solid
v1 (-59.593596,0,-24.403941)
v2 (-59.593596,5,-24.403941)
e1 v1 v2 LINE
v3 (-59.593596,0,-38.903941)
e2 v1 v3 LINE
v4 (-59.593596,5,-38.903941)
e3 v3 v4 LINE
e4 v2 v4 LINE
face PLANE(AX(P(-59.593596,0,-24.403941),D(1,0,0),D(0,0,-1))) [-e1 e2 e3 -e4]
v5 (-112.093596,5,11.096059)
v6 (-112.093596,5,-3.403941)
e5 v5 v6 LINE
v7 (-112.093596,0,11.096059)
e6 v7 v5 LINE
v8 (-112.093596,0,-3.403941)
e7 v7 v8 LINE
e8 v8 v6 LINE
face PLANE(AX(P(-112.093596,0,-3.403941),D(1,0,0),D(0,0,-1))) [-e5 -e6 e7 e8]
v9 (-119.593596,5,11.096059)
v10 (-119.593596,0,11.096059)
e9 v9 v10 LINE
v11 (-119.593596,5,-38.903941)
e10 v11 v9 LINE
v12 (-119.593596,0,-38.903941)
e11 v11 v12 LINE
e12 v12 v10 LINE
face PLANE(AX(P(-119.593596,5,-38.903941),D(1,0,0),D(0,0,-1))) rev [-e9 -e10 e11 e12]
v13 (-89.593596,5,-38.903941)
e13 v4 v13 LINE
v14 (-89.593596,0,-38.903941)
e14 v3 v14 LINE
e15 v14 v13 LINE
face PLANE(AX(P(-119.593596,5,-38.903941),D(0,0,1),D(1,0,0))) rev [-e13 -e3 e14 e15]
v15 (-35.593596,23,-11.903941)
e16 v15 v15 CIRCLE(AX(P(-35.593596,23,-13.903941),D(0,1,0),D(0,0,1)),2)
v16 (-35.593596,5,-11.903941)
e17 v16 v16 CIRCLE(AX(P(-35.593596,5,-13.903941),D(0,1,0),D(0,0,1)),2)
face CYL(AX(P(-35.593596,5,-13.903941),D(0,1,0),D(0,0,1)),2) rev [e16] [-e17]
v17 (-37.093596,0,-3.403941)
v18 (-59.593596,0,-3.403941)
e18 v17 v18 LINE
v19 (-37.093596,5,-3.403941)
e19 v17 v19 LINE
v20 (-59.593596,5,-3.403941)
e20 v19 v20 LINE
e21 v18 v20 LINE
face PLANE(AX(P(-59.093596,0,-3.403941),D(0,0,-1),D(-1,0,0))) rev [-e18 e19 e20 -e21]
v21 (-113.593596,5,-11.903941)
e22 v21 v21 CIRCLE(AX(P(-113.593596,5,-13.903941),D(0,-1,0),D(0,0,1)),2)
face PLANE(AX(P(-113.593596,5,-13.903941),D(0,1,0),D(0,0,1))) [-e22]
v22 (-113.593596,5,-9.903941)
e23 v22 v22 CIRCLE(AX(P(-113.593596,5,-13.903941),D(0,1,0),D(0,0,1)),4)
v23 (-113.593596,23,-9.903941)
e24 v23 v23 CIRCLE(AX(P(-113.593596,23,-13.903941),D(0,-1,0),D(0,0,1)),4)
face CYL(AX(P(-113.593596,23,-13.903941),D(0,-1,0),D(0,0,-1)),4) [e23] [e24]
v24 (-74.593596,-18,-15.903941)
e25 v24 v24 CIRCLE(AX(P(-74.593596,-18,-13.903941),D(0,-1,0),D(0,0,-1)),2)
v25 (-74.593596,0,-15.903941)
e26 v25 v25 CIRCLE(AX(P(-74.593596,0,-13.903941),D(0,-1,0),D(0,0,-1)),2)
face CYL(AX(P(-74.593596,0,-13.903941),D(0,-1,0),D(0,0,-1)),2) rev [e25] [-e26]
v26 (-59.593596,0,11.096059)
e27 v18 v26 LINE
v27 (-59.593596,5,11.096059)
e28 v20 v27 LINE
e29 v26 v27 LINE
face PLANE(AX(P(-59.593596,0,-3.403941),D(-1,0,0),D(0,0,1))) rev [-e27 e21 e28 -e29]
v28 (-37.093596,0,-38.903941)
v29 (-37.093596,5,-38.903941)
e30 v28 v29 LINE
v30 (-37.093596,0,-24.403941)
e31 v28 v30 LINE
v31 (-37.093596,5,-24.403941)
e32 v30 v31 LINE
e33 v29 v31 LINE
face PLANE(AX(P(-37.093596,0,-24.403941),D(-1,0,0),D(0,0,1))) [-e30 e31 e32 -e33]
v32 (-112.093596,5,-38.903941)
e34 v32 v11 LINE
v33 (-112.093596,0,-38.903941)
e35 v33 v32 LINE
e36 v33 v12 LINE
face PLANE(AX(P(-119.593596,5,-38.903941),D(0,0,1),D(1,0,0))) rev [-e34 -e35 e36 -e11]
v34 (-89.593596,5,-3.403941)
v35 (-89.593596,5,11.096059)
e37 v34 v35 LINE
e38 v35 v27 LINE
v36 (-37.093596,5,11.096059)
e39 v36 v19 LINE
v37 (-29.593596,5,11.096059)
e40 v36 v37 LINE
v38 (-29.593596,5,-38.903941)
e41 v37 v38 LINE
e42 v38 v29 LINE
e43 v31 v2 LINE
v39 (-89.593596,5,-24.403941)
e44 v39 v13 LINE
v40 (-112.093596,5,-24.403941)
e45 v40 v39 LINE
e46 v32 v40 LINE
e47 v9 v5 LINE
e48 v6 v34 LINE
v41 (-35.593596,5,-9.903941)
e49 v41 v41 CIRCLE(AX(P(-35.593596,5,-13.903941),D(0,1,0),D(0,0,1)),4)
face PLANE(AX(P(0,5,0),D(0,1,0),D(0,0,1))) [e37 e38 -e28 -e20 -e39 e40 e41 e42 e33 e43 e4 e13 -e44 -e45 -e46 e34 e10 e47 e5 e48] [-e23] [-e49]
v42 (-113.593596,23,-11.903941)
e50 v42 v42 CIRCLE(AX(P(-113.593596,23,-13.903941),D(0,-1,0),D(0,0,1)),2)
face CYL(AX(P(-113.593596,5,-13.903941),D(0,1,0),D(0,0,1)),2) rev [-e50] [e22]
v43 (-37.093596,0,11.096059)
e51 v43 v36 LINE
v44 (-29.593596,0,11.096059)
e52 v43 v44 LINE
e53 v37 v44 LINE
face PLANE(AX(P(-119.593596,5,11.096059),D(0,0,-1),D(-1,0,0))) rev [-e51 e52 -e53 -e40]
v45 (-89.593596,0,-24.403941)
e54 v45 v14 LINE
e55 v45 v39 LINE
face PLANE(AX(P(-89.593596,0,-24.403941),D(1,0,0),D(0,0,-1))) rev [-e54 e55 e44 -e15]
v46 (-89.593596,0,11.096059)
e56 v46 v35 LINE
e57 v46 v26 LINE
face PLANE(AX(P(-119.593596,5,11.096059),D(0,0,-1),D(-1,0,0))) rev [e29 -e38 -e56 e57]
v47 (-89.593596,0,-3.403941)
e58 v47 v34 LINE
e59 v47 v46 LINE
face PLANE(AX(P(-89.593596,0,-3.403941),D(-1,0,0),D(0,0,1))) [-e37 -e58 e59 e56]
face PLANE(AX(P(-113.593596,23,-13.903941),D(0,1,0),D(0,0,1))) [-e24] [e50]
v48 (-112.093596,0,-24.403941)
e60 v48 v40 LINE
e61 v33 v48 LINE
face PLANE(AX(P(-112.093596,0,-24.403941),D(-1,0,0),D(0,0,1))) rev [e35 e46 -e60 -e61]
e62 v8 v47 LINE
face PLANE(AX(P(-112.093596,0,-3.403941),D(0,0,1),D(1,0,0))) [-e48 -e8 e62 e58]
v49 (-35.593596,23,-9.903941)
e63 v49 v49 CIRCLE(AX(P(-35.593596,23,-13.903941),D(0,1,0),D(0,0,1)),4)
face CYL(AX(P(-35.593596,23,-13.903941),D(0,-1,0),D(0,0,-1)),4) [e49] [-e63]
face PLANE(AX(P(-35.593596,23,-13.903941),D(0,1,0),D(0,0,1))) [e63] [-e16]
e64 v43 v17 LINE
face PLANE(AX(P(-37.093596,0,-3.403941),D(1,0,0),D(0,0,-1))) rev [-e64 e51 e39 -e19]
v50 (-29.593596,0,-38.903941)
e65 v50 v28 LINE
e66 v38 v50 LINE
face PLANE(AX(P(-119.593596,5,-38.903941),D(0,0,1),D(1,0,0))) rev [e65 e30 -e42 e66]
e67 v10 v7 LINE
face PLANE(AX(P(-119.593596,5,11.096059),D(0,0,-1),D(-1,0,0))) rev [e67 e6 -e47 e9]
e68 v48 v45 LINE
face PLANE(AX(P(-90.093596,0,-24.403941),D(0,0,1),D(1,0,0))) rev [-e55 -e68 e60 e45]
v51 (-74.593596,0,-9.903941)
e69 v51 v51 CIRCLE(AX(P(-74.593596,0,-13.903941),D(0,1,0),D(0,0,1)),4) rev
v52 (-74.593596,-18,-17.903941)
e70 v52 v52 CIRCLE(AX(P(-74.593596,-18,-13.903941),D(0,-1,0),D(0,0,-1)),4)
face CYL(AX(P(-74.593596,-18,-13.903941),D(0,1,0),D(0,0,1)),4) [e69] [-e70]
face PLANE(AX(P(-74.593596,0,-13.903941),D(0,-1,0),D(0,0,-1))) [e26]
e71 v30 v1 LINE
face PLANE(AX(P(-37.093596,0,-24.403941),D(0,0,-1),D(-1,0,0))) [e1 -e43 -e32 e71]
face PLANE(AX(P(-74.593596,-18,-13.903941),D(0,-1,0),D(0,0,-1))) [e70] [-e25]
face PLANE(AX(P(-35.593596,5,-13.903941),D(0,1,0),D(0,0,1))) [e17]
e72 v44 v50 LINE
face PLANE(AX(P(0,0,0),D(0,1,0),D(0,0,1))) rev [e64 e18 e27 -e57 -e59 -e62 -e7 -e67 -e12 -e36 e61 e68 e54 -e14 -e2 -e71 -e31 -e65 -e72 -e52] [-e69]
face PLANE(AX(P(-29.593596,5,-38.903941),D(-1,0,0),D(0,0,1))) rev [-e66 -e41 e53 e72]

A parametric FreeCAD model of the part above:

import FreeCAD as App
import Part
import Sketcher
from FreeCAD import Vector

doc = App.newDocument("Part")
body = doc.addObject("PartDesign::Body", "Body")

sketch1 = doc.addObject("Sketcher::SketchObject", "Sketch")
body.addObject(sketch1)
sketch1.AttachmentSupport = (doc.XZ_Plane, [""])
sketch1.MapMode = "FlatFace"
sketch1.addGeometry([
    Part.LineSegment(Vector(-120, -39, 0), Vector(-120, 11, 0)),
    Part.LineSegment(Vector(-120, 11, 0), Vector(-30, 11, 0)),
    Part.LineSegment(Vector(-30, 11, 0), Vector(-30, -39, 0)),
    Part.LineSegment(Vector(-30, -39, 0), Vector(-120, -39, 0)),
], False)
sketch1.addConstraint([
    Sketcher.Constraint("Coincident", 0, 2, 1, 1),
    Sketcher.Constraint("Coincident", 1, 2, 2, 1),
    Sketcher.Constraint("Coincident", 2, 2, 3, 1),
    Sketcher.Constraint("Coincident", 3, 2, 0, 1),
    Sketcher.Constraint("Vertical", 0),
    Sketcher.Constraint("Horizontal", 1),
    Sketcher.Constraint("Vertical", 2),
    Sketcher.Constraint("Horizontal", 3),
    Sketcher.Constraint("DistanceX", 1, 1, 1, 2, 90.0),
    Sketcher.Constraint("DistanceY", 0, 1, 0, 2, 50.0),
    Sketcher.Constraint("DistanceY", -1, 1, 0, 2, 11.096059),
    Sketcher.Constraint("DistanceX", 0, 2, -1, 1, 119.593596),
])
pad1 = doc.addObject("PartDesign::Pad", "Pad")
body.addObject(pad1)
pad1.Profile = sketch1
pad1.Length = 5
pad1.Reversed = True

sketch2 = doc.addObject("Sketcher::SketchObject", "Sketch001")
body.addObject(sketch2)
sketch2.AttachmentSupport = (doc.XZ_Plane, [""])
sketch2.MapMode = "FlatFace"
sketch2.AttachmentOffset = App.Placement(Vector(0, 0, -5), App.Rotation())
sketch2.addGeometry([
    Part.LineSegment(Vector(-90, -24, 0), Vector(-90, -39, 0)),
    Part.LineSegment(Vector(-90, -39, 0), Vector(-112, -39, 0)),
    Part.LineSegment(Vector(-112, -39, 0), Vector(-112, -24, 0)),
    Part.LineSegment(Vector(-112, -24, 0), Vector(-90, -24, 0)),
], False)
sketch2.addConstraint([
    Sketcher.Constraint("Coincident", 0, 2, 1, 1),
    Sketcher.Constraint("Coincident", 1, 2, 2, 1),
    Sketcher.Constraint("Coincident", 2, 2, 3, 1),
    Sketcher.Constraint("Coincident", 3, 2, 0, 1),
    Sketcher.Constraint("Vertical", 0),
    Sketcher.Constraint("Horizontal", 1),
    Sketcher.Constraint("Vertical", 2),
    Sketcher.Constraint("Horizontal", 3),
    Sketcher.Constraint("DistanceX", 1, 2, 1, 1, 22.5),
    Sketcher.Constraint("DistanceY", 0, 2, 0, 1, 14.5),
    Sketcher.Constraint("DistanceY", 0, 2, -1, 1, 38.903941),
    Sketcher.Constraint("DistanceX", 0, 2, -1, 1, 89.593596),
])
pocket1 = doc.addObject("PartDesign::Pocket", "Pocket")
body.addObject(pocket1)
pocket1.Profile = sketch2
pocket1.Length = 5
pocket1.Reversed = True
doc.recompute()

datumplane = doc.addObject("PartDesign::Plane", "DatumPlane")
body.addObject(datumplane)
datumplane.AttachmentSupport = (doc.XY_Plane, [""])
datumplane.MapMode = "FlatFace"
datumplane.AttachmentOffset = App.Placement(Vector(0, 0, -13.903941), App.Rotation())
mirrored = doc.addObject("PartDesign::Mirrored", "Mirrored")
body.addObject(mirrored)
mirrored.Originals = [pocket1]
mirrored.MirrorPlane = (datumplane, [""])
body.Tip = mirrored
doc.recompute()

datumplane2 = doc.addObject("PartDesign::Plane", "DatumPlane001")
body.addObject(datumplane2)
datumplane2.AttachmentSupport = (doc.YZ_Plane, [""])
datumplane2.MapMode = "FlatFace"
datumplane2.AttachmentOffset = App.Placement(Vector(0, 0, -74.593596), App.Rotation())
mirrored2 = doc.addObject("PartDesign::Mirrored", "Mirrored001")
body.addObject(mirrored2)
mirrored2.Originals = [pocket1]
mirrored2.MirrorPlane = (datumplane2, [""])
body.Tip = mirrored2

sketch3 = doc.addObject("Sketcher::SketchObject", "Sketch002")
body.addObject(sketch3)
sketch3.AttachmentSupport = (doc.XZ_Plane, [""])
sketch3.MapMode = "FlatFace"
sketch3.AttachmentOffset = App.Placement(Vector(0, 0, -5), App.Rotation())
sketch3.addGeometry([
    Part.LineSegment(Vector(-60, -3, 0), Vector(-60, 11, 0)),
    Part.LineSegment(Vector(-60, 11, 0), Vector(-37, 11, 0)),
    Part.LineSegment(Vector(-37, 11, 0), Vector(-37, -3, 0)),
    Part.LineSegment(Vector(-37, -3, 0), Vector(-60, -3, 0)),
], False)
sketch3.addConstraint([
    Sketcher.Constraint("Coincident", 0, 2, 1, 1),
    Sketcher.Constraint("Coincident", 1, 2, 2, 1),
    Sketcher.Constraint("Coincident", 2, 2, 3, 1),
    Sketcher.Constraint("Coincident", 3, 2, 0, 1),
    Sketcher.Constraint("Vertical", 0),
    Sketcher.Constraint("Horizontal", 1),
    Sketcher.Constraint("Vertical", 2),
    Sketcher.Constraint("Horizontal", 3),
    Sketcher.Constraint("DistanceX", 1, 1, 1, 2, 22.5),
    Sketcher.Constraint("DistanceY", 0, 1, 0, 2, 14.5),
    Sketcher.Constraint("DistanceY", -1, 1, 0, 2, 11.096059),
    Sketcher.Constraint("DistanceX", 0, 2, -1, 1, 59.593596),
])
pocket2 = doc.addObject("PartDesign::Pocket", "Pocket001")
body.addObject(pocket2)
pocket2.Profile = sketch3
pocket2.Length = 5
pocket2.Reversed = True

sketch4 = doc.addObject("Sketcher::SketchObject", "Sketch003")
body.addObject(sketch4)
sketch4.AttachmentSupport = (doc.XZ_Plane, [""])
sketch4.MapMode = "FlatFace"
sketch4.AttachmentOffset = App.Placement(Vector(0, 0, -5), App.Rotation())
sketch4.addGeometry(Part.Circle(Vector(-35.6, -13.9, 0), Vector(0, 0, 1), 4), False)
sketch4.addConstraint([
    Sketcher.Constraint("Diameter", 0, 8.0),
    Sketcher.Constraint("DistanceY", 0, 3, -1, 1, 13.903941),
    Sketcher.Constraint("DistanceX", 0, 3, -1, 1, 35.593596),
])
pad2 = doc.addObject("PartDesign::Pad", "Pad001")
body.addObject(pad2)
pad2.Profile = sketch4
pad2.Length = 18
pad2.Reversed = True

sketch5 = doc.addObject("Sketcher::SketchObject", "Sketch004")
body.addObject(sketch5)
sketch5.AttachmentSupport = (doc.XZ_Plane, [""])
sketch5.MapMode = "FlatFace"
sketch5.AttachmentOffset = App.Placement(Vector(0, 0, -23), App.Rotation())
sketch5.addGeometry(Part.Circle(Vector(-35.6, -13.9, 0), Vector(0, 0, 1), 2), False)
sketch5.addConstraint([
    Sketcher.Constraint("Diameter", 0, 4.0),
    Sketcher.Constraint("DistanceY", 0, 3, -1, 1, 13.903941),
    Sketcher.Constraint("DistanceX", 0, 3, -1, 1, 35.593596),
])
pocket3 = doc.addObject("PartDesign::Pocket", "Pocket002")
body.addObject(pocket3)
pocket3.Profile = sketch5
pocket3.Length = 18
pocket3.Reversed = True
doc.recompute()

datumplane3 = doc.addObject("PartDesign::Plane", "DatumPlane002")
body.addObject(datumplane3)
datumplane3.AttachmentSupport = (doc.YZ_Plane, [""])
datumplane3.MapMode = "FlatFace"
datumplane3.AttachmentOffset = App.Placement(Vector(0, 0, -74.593596), App.Rotation())
mirrored3 = doc.addObject("PartDesign::Mirrored", "Mirrored002")
body.addObject(mirrored3)
mirrored3.Originals = [pad2, pocket3]
mirrored3.MirrorPlane = (datumplane3, [""])
body.Tip = mirrored3

sketch6 = doc.addObject("Sketcher::SketchObject", "Sketch005")
body.addObject(sketch6)
sketch6.AttachmentSupport = (doc.XZ_Plane, [""])
sketch6.MapMode = "FlatFace"
sketch6.addGeometry(Part.Circle(Vector(-74.6, -13.9, 0), Vector(0, 0, 1), 4), False)
sketch6.addConstraint([
    Sketcher.Constraint("Diameter", 0, 8.0),
    Sketcher.Constraint("DistanceY", 0, 3, -1, 1, 13.903941),
    Sketcher.Constraint("DistanceX", 0, 3, -1, 1, 74.593596),
])
pad3 = doc.addObject("PartDesign::Pad", "Pad002")
body.addObject(pad3)
pad3.Profile = sketch6
pad3.Length = 18

sketch7 = doc.addObject("Sketcher::SketchObject", "Sketch006")
body.addObject(sketch7)
sketch7.AttachmentSupport = (doc.XZ_Plane, [""])
sketch7.MapMode = "FlatFace"
sketch7.AttachmentOffset = App.Placement(Vector(0, 0, 18), App.Rotation())
sketch7.addGeometry(Part.Circle(Vector(-74.6, -13.9, 0), Vector(0, 0, 1), 2), False)
sketch7.addConstraint([
    Sketcher.Constraint("Diameter", 0, 4.0),
    Sketcher.Constraint("DistanceY", 0, 3, -1, 1, 13.903941),
    Sketcher.Constraint("DistanceX", 0, 3, -1, 1, 74.593596),
])
pocket4 = doc.addObject("PartDesign::Pocket", "Pocket003")
body.addObject(pocket4)
pocket4.Profile = sketch7
pocket4.Length = 18

doc.recompute()
